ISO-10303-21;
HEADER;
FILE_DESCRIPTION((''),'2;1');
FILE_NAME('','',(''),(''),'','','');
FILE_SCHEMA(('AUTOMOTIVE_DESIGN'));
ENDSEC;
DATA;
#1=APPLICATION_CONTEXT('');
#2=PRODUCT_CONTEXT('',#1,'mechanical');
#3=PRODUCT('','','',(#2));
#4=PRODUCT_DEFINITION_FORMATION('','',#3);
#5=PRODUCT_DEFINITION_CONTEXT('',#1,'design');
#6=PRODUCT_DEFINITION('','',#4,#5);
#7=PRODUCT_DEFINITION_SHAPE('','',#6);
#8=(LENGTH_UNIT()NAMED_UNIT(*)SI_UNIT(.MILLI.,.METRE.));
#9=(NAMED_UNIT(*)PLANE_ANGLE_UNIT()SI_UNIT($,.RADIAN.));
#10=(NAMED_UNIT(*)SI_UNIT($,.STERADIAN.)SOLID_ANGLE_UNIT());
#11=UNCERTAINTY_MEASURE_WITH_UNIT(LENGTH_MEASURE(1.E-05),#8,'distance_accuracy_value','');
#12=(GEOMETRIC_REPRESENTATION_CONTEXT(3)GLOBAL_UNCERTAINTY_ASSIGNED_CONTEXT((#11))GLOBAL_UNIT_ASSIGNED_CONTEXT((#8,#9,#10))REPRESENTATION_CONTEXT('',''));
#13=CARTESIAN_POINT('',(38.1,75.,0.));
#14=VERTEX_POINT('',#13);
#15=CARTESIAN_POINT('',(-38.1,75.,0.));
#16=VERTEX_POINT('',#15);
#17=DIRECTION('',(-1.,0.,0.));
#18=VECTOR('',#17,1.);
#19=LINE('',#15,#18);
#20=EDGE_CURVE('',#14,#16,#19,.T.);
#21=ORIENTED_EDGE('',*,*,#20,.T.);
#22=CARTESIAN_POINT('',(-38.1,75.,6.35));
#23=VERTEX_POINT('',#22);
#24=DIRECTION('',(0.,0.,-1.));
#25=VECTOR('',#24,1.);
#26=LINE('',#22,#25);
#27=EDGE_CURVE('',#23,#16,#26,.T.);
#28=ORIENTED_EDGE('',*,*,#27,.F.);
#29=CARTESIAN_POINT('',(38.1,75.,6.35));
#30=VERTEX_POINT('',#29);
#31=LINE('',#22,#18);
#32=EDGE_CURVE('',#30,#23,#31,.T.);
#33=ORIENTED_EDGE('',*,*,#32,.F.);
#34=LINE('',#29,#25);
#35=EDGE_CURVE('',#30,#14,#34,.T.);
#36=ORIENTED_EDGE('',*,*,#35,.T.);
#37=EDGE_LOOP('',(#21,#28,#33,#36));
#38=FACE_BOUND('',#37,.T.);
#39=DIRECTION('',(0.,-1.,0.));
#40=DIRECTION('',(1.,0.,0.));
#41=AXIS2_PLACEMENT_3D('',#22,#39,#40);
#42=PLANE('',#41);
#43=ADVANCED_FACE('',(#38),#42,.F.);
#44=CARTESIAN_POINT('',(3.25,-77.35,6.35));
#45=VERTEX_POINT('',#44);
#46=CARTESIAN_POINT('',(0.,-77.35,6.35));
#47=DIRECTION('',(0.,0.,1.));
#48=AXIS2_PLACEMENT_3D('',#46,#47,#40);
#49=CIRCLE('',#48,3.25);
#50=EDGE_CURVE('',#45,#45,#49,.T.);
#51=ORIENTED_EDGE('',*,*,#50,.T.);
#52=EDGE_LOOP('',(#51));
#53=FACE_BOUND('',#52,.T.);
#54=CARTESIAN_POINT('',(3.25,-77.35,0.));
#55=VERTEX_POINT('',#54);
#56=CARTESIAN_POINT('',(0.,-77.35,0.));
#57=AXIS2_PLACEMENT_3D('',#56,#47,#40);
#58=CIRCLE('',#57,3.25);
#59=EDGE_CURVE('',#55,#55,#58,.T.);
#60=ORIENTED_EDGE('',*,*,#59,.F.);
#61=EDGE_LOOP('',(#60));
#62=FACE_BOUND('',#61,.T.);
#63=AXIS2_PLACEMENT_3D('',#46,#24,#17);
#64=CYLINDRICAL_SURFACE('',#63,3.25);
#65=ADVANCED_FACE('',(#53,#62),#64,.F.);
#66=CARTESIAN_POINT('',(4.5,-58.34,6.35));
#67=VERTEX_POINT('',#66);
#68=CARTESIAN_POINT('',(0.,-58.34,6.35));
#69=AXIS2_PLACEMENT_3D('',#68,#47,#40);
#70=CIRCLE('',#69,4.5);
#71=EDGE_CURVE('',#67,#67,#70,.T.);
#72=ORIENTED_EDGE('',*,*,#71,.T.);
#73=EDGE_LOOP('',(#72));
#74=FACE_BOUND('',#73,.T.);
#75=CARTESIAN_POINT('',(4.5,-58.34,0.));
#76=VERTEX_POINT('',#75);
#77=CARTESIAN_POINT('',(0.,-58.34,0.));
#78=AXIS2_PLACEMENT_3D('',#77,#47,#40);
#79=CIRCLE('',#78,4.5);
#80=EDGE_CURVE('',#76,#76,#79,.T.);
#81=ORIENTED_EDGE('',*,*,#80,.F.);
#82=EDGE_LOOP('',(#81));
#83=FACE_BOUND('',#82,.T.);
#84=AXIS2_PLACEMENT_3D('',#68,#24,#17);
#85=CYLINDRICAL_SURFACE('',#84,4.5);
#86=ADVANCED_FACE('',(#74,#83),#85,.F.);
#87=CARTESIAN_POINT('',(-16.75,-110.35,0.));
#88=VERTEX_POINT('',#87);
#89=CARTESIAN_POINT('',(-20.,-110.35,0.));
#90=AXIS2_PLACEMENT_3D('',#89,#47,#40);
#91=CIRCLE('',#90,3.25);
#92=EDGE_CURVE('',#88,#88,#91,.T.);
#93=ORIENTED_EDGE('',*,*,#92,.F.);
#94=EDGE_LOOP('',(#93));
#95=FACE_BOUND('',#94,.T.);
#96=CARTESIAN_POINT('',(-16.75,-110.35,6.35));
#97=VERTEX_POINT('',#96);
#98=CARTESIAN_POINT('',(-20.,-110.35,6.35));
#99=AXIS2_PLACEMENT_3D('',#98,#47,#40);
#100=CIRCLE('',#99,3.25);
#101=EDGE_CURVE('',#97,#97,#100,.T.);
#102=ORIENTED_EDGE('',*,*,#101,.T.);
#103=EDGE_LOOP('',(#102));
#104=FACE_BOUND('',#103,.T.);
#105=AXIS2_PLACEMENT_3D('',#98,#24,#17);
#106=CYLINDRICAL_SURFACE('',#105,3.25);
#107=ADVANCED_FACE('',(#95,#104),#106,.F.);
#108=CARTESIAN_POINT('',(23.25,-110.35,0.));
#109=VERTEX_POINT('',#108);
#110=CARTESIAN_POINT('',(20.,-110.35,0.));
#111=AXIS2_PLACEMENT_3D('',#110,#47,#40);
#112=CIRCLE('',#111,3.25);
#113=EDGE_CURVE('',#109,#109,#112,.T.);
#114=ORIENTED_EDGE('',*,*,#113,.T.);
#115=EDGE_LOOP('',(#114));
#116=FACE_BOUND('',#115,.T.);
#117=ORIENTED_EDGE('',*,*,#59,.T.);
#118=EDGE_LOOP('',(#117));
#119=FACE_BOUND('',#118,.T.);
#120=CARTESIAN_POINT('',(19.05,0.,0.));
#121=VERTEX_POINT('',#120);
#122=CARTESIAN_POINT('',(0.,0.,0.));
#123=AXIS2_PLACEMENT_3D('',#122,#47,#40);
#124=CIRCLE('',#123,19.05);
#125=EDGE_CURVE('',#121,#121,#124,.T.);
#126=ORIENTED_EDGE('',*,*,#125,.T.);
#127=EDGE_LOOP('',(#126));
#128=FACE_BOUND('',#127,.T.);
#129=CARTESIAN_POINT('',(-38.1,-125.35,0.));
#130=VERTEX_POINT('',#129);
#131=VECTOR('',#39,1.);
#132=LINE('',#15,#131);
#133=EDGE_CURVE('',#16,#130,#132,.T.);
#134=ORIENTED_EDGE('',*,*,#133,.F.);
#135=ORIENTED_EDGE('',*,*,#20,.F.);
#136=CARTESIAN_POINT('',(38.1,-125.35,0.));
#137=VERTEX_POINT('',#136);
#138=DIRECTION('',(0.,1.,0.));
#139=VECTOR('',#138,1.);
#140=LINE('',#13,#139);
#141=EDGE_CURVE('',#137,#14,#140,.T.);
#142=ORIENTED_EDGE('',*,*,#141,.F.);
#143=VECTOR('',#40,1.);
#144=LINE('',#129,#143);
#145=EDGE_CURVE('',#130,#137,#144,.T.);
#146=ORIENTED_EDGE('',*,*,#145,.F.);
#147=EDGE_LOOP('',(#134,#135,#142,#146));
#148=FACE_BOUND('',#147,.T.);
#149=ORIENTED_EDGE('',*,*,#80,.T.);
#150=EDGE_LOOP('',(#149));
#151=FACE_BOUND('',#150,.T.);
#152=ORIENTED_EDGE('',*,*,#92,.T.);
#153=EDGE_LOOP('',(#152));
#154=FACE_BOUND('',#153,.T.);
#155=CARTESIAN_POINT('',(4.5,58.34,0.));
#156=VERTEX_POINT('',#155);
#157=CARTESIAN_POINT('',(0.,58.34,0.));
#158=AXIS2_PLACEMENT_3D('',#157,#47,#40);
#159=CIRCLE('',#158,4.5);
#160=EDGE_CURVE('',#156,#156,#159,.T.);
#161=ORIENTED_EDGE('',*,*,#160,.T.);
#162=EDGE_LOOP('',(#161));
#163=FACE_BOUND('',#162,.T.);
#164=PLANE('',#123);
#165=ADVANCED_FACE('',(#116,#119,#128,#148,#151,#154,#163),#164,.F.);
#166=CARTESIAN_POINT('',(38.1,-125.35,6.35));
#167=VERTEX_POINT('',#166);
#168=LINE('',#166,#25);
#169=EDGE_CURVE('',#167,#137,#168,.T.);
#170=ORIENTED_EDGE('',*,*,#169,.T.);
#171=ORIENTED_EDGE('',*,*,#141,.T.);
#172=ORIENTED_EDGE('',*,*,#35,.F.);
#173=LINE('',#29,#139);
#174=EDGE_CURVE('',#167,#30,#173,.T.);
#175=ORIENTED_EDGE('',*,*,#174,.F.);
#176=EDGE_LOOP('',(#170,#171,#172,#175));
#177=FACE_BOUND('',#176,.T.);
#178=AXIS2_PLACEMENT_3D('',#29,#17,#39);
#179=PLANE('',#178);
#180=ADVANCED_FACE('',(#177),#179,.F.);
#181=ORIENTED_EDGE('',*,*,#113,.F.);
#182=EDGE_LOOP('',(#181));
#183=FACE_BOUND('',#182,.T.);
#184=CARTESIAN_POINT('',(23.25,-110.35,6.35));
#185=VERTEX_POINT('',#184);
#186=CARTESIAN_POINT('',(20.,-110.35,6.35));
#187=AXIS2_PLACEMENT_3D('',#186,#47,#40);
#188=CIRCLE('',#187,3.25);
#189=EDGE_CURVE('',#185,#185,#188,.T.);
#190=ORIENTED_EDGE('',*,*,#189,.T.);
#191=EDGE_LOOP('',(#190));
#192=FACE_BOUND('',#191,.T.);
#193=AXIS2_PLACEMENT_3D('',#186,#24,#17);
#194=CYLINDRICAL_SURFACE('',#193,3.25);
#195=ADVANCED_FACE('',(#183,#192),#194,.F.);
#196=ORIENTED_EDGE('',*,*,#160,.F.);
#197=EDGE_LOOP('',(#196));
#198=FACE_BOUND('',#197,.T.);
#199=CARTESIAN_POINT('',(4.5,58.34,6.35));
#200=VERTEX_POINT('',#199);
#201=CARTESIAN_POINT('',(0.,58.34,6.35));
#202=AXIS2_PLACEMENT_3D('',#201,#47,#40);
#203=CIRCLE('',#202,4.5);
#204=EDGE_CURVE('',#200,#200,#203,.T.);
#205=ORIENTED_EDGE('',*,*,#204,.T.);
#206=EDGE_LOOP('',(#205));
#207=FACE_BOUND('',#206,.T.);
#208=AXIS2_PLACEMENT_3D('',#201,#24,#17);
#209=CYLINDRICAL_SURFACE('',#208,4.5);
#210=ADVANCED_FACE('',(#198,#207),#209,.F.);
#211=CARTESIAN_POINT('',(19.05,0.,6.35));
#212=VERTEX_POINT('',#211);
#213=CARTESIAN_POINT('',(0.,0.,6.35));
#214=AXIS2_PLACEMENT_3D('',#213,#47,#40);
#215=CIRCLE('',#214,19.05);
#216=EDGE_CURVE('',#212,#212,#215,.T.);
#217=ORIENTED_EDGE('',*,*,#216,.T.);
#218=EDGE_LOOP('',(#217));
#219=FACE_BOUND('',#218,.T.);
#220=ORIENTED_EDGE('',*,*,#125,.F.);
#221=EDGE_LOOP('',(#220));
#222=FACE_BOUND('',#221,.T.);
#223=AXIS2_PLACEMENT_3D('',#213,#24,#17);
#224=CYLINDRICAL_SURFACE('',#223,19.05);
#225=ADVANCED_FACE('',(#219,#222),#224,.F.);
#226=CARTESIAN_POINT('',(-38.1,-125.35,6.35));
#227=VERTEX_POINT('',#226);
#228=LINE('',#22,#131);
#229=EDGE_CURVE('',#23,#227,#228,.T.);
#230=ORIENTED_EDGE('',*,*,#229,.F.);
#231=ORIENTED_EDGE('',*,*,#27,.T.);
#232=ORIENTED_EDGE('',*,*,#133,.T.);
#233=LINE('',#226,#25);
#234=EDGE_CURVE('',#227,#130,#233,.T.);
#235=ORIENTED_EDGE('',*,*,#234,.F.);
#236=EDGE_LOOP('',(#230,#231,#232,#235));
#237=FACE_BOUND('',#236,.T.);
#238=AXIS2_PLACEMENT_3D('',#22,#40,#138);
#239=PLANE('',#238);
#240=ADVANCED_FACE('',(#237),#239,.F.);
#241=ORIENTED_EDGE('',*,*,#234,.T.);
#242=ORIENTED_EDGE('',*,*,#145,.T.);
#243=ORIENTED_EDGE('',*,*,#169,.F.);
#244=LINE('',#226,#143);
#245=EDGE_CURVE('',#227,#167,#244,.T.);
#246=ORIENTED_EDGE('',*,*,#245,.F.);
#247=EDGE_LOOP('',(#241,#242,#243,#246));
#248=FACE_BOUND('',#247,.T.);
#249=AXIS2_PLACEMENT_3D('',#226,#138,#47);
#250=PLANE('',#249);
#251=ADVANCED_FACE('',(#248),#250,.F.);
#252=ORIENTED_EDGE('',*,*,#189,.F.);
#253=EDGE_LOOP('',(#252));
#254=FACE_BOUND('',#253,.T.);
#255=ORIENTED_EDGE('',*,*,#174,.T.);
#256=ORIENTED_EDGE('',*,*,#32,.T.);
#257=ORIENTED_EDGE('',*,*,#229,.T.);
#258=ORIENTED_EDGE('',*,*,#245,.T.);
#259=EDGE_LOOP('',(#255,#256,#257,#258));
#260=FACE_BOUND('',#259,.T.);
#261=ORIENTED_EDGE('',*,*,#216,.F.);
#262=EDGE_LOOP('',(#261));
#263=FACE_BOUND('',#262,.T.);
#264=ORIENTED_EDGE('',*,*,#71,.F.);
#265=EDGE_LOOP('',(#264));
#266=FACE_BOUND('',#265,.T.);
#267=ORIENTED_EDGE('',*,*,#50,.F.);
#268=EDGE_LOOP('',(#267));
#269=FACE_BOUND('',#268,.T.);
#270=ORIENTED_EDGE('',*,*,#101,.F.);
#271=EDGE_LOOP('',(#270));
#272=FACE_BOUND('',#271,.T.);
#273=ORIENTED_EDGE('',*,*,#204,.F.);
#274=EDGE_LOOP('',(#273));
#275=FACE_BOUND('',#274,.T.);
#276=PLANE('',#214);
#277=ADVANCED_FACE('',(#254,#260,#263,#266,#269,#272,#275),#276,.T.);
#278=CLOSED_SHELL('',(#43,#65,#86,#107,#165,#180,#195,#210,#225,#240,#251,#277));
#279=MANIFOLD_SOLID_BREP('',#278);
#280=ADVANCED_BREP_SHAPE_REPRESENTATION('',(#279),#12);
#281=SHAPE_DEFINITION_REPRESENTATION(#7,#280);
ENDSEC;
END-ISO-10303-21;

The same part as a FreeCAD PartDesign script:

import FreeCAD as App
import Part
import Sketcher
from FreeCAD import Vector
Q = App.Units.Quantity


def add_polygon(sketch, points):
    """Adds a closed chain of lines whose ends are joined by coincident constraints."""
    first, n = sketch.GeometryCount, len(points)
    for a, b in zip(points, points[1:] + points[:1]):
        sketch.addGeometry(Part.LineSegment(App.Vector(*a, 0), App.Vector(*b, 0)), False)
    for i in range(n):
        sketch.addConstraint(Sketcher.Constraint("Coincident", first + i, 2, first + (i + 1) % n, 1))

doc = App.newDocument("Part")
body = doc.addObject("PartDesign::Body", "Body")

sketch1 = body.newObject("Sketcher::SketchObject", "Sketch")
sketch1.AttachmentSupport = (doc.getObject("XY_Plane"), [""])
sketch1.MapMode = "FlatFace"
add_polygon(sketch1, [(-38.1, 75), (-38.1, -125.35), (38.1, -125.35), (38.1, 75)])
sketch1.addGeometry(Part.Circle(Vector(-20, -110.35, 0), Vector(0, 0, 1), 3.25), False)
sketch1.addGeometry(Part.Circle(Vector(0, -77.35, 0), Vector(0, 0, 1), 3.25), False)
sketch1.addGeometry(Part.Circle(Vector(20, -110.35, 0), Vector(0, 0, 1), 3.25), False)
sketch1.addGeometry(Part.Circle(Vector(0, -58.34, 0), Vector(0, 0, 1), 4.5), False)
sketch1.addGeometry(Part.Circle(Vector(0, 0, 0), Vector(0, 0, 1), 19.05), False)
sketch1.addGeometry(Part.Circle(Vector(0, 58.34, 0), Vector(0, 0, 1), 4.5), False)
sketch1.addConstraint(Sketcher.Constraint("Vertical", 0))
sketch1.addConstraint(Sketcher.Constraint("Horizontal", 1))
sketch1.addConstraint(Sketcher.Constraint("Vertical", 2))
sketch1.addConstraint(Sketcher.Constraint("Horizontal", 3))
sketch1.addConstraint(Sketcher.Constraint("Coincident", 8, 3, -1, 1))
sketch1.addConstraint(Sketcher.Constraint("Equal", 4, 5))
sketch1.addConstraint(Sketcher.Constraint("Equal", 5, 6))
sketch1.addConstraint(Sketcher.Constraint("Equal", 7, 9))
sketch1.addConstraint(Sketcher.Constraint("Symmetric", 7, 3, 9, 3, -1, 1))
sketch1.addConstraint(Sketcher.Constraint("Symmetric", 4, 3, 6, 3, -2))
sketch1.addConstraint(Sketcher.Constraint("PointOnObject", 5, 3, -2))
sketch1.addConstraint(Sketcher.Constraint("PointOnObject", 7, 3, -2))
sketch1.addConstraint(Sketcher.Constraint("Diameter", 8, Q("1.5 in")))
sketch1.addConstraint(Sketcher.Constraint("DistanceX", 1, 1, 1, 2, Q("3 in")))
sketch1.addConstraint(Sketcher.Constraint("DistanceX", 0, 2, -1, 1, Q("1.5 in")))
sketch1.addConstraint(Sketcher.Constraint("Diameter", 4, 6.5))
sketch1.addConstraint(Sketcher.Constraint("Diameter", 7, 9.0))
sketch1.addConstraint(Sketcher.Constraint("DistanceY", 0, 2, 0, 1, 200.35))
sketch1.addConstraint(Sketcher.Constraint("DistanceX", 4, 3, -1, 1, 20.0))
sketch1.addConstraint(Sketcher.Constraint("DistanceY", 4, 3, -1, 1, 110.35))
sketch1.addConstraint(Sketcher.Constraint("DistanceY", 5, 3, -1, 1, 77.35))
sketch1.addConstraint(Sketcher.Constraint("DistanceY", 7, 3, -1, 1, 58.34))
sketch1.addConstraint(Sketcher.Constraint("DistanceY", 0, 2, -1, 1, 125.35))
pad1 = body.newObject("PartDesign::Pad", "Pad")
pad1.Profile = sketch1
pad1.Length = Q("0.25 in")

doc.recompute()
